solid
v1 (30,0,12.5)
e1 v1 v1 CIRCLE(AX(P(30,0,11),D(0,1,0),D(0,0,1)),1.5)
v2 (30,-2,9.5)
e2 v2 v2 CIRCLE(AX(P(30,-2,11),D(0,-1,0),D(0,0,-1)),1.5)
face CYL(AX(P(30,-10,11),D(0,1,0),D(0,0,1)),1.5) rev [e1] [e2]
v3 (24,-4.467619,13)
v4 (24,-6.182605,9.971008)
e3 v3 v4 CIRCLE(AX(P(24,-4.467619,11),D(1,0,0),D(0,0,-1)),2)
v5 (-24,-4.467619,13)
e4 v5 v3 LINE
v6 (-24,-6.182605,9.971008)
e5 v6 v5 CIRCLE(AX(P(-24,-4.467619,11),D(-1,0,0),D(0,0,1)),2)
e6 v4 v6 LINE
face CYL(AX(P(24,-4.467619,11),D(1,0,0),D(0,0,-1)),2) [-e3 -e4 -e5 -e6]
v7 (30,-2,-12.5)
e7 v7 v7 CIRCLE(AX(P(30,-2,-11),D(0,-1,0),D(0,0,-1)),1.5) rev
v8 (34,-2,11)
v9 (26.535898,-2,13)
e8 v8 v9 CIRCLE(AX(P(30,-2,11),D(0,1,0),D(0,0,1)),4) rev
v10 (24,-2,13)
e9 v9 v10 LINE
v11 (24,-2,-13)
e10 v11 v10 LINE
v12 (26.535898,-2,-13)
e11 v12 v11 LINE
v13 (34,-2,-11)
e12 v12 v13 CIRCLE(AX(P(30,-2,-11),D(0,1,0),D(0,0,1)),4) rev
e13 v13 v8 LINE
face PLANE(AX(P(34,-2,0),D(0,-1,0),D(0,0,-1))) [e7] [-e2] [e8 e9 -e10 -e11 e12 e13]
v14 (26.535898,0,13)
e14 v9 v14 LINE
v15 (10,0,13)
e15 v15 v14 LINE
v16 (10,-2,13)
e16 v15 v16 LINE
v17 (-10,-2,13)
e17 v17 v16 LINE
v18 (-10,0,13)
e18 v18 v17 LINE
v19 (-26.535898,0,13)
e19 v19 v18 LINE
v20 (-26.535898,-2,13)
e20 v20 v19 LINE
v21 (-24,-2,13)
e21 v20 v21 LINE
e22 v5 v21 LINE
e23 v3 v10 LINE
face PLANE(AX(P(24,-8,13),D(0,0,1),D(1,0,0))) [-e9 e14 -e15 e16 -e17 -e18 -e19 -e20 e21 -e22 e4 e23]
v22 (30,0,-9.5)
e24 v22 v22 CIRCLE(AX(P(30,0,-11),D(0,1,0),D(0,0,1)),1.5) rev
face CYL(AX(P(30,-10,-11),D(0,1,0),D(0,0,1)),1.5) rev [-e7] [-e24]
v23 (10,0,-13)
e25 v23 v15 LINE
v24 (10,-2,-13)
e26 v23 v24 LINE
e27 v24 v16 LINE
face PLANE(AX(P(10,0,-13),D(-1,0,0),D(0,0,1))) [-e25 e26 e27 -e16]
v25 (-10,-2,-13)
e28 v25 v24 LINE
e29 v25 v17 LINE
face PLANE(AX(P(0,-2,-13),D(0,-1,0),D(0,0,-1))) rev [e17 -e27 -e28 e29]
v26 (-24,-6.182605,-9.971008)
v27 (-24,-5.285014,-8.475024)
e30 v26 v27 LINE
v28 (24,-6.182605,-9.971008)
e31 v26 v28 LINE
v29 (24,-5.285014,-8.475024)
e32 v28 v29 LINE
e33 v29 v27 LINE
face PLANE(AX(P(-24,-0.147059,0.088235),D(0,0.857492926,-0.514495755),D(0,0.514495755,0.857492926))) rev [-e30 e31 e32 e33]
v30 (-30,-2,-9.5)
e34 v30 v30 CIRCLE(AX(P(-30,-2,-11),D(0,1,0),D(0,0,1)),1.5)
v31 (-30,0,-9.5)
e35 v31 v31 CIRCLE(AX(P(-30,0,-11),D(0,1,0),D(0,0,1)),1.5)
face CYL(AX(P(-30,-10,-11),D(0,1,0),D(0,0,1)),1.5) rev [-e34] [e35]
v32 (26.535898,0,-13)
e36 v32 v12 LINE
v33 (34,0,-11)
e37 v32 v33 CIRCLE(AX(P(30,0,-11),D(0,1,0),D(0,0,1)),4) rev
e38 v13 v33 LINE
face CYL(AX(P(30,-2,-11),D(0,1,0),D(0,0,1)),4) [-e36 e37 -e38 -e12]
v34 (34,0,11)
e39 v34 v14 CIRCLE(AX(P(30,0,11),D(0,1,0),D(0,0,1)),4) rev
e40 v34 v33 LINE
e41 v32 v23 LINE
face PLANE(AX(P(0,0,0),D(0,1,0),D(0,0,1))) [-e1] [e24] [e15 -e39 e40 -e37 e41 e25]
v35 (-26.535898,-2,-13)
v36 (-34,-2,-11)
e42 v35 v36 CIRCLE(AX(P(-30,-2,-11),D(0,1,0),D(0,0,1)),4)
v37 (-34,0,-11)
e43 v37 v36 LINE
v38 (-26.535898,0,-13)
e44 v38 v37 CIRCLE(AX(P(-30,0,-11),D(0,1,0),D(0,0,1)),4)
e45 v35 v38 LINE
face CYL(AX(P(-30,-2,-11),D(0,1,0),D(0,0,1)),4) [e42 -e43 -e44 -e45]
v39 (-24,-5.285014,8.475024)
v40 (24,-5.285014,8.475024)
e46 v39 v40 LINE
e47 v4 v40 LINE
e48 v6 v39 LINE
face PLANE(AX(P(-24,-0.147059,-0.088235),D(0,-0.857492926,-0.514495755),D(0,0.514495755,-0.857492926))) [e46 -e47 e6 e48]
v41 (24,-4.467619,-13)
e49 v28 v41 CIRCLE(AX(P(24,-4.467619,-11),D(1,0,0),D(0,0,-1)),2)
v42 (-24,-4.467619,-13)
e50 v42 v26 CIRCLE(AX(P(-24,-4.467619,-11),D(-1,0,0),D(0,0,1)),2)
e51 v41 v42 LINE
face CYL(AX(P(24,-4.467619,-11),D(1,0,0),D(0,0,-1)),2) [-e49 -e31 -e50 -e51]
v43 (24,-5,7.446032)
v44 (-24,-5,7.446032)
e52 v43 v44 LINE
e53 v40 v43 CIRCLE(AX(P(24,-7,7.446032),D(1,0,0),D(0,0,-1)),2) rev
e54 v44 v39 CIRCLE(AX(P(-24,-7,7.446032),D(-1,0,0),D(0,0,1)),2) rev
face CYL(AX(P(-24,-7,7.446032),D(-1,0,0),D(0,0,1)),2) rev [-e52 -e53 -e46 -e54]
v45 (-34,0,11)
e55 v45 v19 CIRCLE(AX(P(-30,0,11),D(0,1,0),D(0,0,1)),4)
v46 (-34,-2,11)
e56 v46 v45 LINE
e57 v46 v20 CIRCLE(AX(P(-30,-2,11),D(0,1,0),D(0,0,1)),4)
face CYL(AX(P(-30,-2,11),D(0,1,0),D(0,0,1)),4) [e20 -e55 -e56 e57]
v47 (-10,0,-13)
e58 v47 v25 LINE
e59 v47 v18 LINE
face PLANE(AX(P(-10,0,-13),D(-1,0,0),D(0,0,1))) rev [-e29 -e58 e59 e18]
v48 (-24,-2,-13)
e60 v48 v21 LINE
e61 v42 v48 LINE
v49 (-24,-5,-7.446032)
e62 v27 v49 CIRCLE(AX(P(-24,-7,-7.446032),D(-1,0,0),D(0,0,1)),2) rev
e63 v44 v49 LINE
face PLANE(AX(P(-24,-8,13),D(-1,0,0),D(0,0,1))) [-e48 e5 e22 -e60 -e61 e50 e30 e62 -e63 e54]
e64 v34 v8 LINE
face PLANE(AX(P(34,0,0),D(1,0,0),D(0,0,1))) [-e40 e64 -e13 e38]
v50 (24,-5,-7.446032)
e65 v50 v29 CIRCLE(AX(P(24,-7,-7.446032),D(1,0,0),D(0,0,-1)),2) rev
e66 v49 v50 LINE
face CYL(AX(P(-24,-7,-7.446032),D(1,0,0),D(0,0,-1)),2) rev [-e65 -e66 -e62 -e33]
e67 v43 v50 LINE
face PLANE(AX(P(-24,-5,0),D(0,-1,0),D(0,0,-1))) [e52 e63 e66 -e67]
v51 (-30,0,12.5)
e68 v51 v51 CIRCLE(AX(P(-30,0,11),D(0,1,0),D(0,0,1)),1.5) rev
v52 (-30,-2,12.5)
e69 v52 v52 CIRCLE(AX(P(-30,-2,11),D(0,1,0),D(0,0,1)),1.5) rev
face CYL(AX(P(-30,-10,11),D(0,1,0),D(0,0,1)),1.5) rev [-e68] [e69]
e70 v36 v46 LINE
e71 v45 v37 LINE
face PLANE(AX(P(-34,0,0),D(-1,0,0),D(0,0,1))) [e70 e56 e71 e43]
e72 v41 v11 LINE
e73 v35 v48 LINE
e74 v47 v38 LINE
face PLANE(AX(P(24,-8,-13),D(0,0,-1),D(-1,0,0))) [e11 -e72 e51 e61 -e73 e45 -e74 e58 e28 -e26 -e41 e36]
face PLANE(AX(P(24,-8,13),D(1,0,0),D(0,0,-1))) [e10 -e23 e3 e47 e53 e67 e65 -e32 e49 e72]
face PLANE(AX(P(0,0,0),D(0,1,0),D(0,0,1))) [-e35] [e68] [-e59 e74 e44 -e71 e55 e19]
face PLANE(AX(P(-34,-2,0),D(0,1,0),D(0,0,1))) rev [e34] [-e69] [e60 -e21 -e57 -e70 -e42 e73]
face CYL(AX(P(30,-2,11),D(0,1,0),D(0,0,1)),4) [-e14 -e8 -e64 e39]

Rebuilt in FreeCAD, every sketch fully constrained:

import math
import FreeCAD as App
import Part
import Sketcher


def edges_at(feature, points):
    """Names of the edges that pass closest to the given points."""
    edges = feature.Shape.Edges
    near = lambda p: min(range(len(edges)), key=lambda i: edges[i].distToShape(Part.Vertex(*p))[0])
    return sorted({f"Edge{near(p) + 1}" for p in points})

doc = App.newDocument("Part")
body = doc.addObject("PartDesign::Body", "Body")

# Sketch on XZ plane
sketch1 = body.newObject("Sketcher::SketchObject", "Sketch")
sketch1.AttachmentSupport = (doc.getObject("XZ_Plane"), [""])
sketch1.MapMode = "FlatFace"
sketch1.addGeometry([
    Part.LineSegment(App.Vector(-24, -13, 0), App.Vector(-24, 13, 0)),
    Part.LineSegment(App.Vector(-24, 13, 0), App.Vector(24, 13, 0)),
    Part.LineSegment(App.Vector(24, 13, 0), App.Vector(24, -13, 0)),
    Part.LineSegment(App.Vector(24, -13, 0), App.Vector(-24, -13, 0)),
], False)
sketch1.addConstraint([
    Sketcher.Constraint("Coincident", 0, 2, 1, 1),
    Sketcher.Constraint("Coincident", 1, 2, 2, 1),
    Sketcher.Constraint("Coincident", 2, 2, 3, 1),
    Sketcher.Constraint("Coincident", 3, 2, 0, 1),
    Sketcher.Constraint("Vertical", 0),
    Sketcher.Constraint("Horizontal", 1),
    Sketcher.Constraint("Vertical", 2),
    Sketcher.Constraint("Horizontal", 3),
    Sketcher.Constraint("Symmetric", 0, 2, 2, 2, -1, 1),
    Sketcher.Constraint("DistanceX", 1, 1, 1, 2, 48.0),
    Sketcher.Constraint("DistanceY", 0, 1, 0, 2, 26.0),
])
pad1 = body.newObject("PartDesign::Pad", "Pad")
pad1.Profile = sketch1
pad1.Length = 8

# Sketch on YZ plane
sketch2 = body.newObject("Sketcher::SketchObject", "Sketch001")
sketch2.AttachmentSupport = (doc.getObject("YZ_Plane"), [""])
sketch2.MapMode = "FlatFace"
sketch2.AttachmentOffset = App.Placement(App.Vector(0, 0, 24), App.Rotation())
sketch2.addGeometry([
    Part.LineSegment(App.Vector(-5, 8, 0), App.Vector(-8, 13, 0)),
    Part.LineSegment(App.Vector(-8, 13, 0), App.Vector(-8, -13, 0)),
    Part.LineSegment(App.Vector(-8, -13, 0), App.Vector(-5, -8, 0)),
    Part.LineSegment(App.Vector(-5, -8, 0), App.Vector(-5, 8, 0)),
], False)
sketch2.addConstraint([
    Sketcher.Constraint("Coincident", 0, 2, 1, 1),
    Sketcher.Constraint("Coincident", 1, 2, 2, 1),
    Sketcher.Constraint("Coincident", 2, 2, 3, 1),
    Sketcher.Constraint("Coincident", 3, 2, 0, 1),
    Sketcher.Constraint("Vertical", 1),
    Sketcher.Constraint("Vertical", 3),
    Sketcher.Constraint("Equal", 0, 2),
    Sketcher.Constraint("DistanceY", 1, 2, 1, 1, 26.0),
    Sketcher.Constraint("DistanceY", 3, 1, 3, 2, 16.0),
    Sketcher.Constraint("DistanceX", 0, 2, -1, 1, 8.0),
    Sketcher.Constraint("DistanceY", -1, 1, 0, 2, 13.0),
    Sketcher.Constraint("DistanceX", 2, 2, -1, 1, 5.0),
])
pocket1 = body.newObject("PartDesign::Pocket", "Pocket")
pocket1.Profile = sketch2
pocket1.Type = "ThroughAll"
pocket1.Midplane = True
doc.recompute()

fillet = body.newObject("PartDesign::Fillet", "Fillet")
fillet.Base = (pocket1, edges_at(pocket1, [
    (0, -8, -13),
    (0, -5, 8),
    (0, -5, -8),
    (0, -8, 13),
]))
fillet.Radius = 2

# Sketch on YZ plane
sketch3 = body.newObject("Sketcher::SketchObject", "Sketch002")
sketch3.AttachmentSupport = (doc.getObject("YZ_Plane"), [""])
sketch3.MapMode = "FlatFace"
sketch3.AttachmentOffset = App.Placement(App.Vector(0, 0, -24), App.Rotation())
sketch3.addGeometry([
    Part.LineSegment(App.Vector(0, -13, 0), App.Vector(-2, -13, 0)),
    Part.LineSegment(App.Vector(-2, -13, 0), App.Vector(-2, 13, 0)),
    Part.LineSegment(App.Vector(-2, 13, 0), App.Vector(0, 13, 0)),
    Part.LineSegment(App.Vector(0, 13, 0), App.Vector(0, -13, 0)),
], False)
sketch3.addConstraint([
    Sketcher.Constraint("Coincident", 0, 2, 1, 1),
    Sketcher.Constraint("Coincident", 1, 2, 2, 1),
    Sketcher.Constraint("Coincident", 2, 2, 3, 1),
    Sketcher.Constraint("Coincident", 3, 2, 0, 1),
    Sketcher.Constraint("Horizontal", 0),
    Sketcher.Constraint("Vertical", 1),
    Sketcher.Constraint("Horizontal", 2),
    Sketcher.Constraint("Vertical", 3),
    Sketcher.Constraint("Symmetric", 2, 2, 3, 2, -1, 1),
    Sketcher.Constraint("DistanceX", 0, 2, 0, 1, 2.0),
    Sketcher.Constraint("DistanceY", 1, 1, 1, 2, 26.0),
])
pad2 = body.newObject("PartDesign::Pad", "Pad001")
pad2.Profile = sketch3
pad2.Length = 10
pad2.Reversed = True
doc.recompute()

mirrored = body.newObject("PartDesign::Mirrored", "Mirrored")
mirrored.Originals = [pad2]
mirrored.MirrorPlane = (doc.getObject("YZ_Plane"), [""])
body.Tip = mirrored

# Sketch on XZ plane
sketch4 = body.newObject("Sketcher::SketchObject", "Sketch003")
sketch4.AttachmentSupport = (doc.getObject("XZ_Plane"), [""])
sketch4.MapMode = "FlatFace"
sketch4.addGeometry([
    Part.Circle(App.Vector(-30, -11, 0), App.Vector(0, 0, 1), 1.5),
    Part.Circle(App.Vector(-30, 11, 0), App.Vector(0, 0, 1), 1.5),
    Part.Circle(App.Vector(30, 11, 0), App.Vector(0, 0, 1), 1.5),
    Part.Circle(App.Vector(30, -11, 0), App.Vector(0, 0, 1), 1.5),
], False)
sketch4.addConstraint([
    Sketcher.Constraint("Equal", 0, 1),
    Sketcher.Constraint("Equal", 1, 2),
    Sketcher.Constraint("Equal", 2, 3),
    Sketcher.Constraint("Symmetric", 0, 3, 2, 3, -1, 1),
    Sketcher.Constraint("Symmetric", 1, 3, 3, 3, -1, 1),
    Sketcher.Constraint("Symmetric", 1, 3, 2, 3, -2),
    Sketcher.Constraint("Diameter", 0, 3.0),
    Sketcher.Constraint("DistanceX", 0, 3, -1, 1, 30.0),
    Sketcher.Constraint("DistanceY", 0, 3, -1, 1, 11.0),
])
pocket2 = body.newObject("PartDesign::Pocket", "Pocket001")
pocket2.Profile = sketch4
pocket2.Length = 10
pocket2.Reversed = True

# Sketch on XY plane
sketch5 = body.newObject("Sketcher::SketchObject", "Sketch004")
sketch5.AttachmentSupport = (doc.getObject("XY_Plane"), [""])
sketch5.MapMode = "FlatFace"
sketch5.AttachmentOffset = App.Placement(App.Vector(0, 0, 13), App.Rotation())
sketch5.addGeometry([
    Part.LineSegment(App.Vector(10, -2, 0), App.Vector(10, 0, 0)),
    Part.LineSegment(App.Vector(10, 0, 0), App.Vector(-10, 0, 0)),
    Part.LineSegment(App.Vector(-10, 0, 0), App.Vector(-10, -2, 0)),
    Part.LineSegment(App.Vector(-10, -2, 0), App.Vector(10, -2, 0)),
], False)
sketch5.addConstraint([
    Sketcher.Constraint("Coincident", 0, 2, 1, 1),
    Sketcher.Constraint("Coincident", 1, 2, 2, 1),
    Sketcher.Constraint("Coincident", 2, 2, 3, 1),
    Sketcher.Constraint("Coincident", 3, 2, 0, 1),
    Sketcher.Constraint("Vertical", 0),
    Sketcher.Constraint("Horizontal", 1),
    Sketcher.Constraint("Vertical", 2),
    Sketcher.Constraint("Horizontal", 3),
    Sketcher.Constraint("Symmetric", 0, 2, 1, 2, -1, 1),
    Sketcher.Constraint("DistanceX", 1, 2, 1, 1, 20.0),
    Sketcher.Constraint("DistanceY", 0, 1, 0, 2, 2.0),
])
pocket3 = body.newObject("PartDesign::Pocket", "Pocket002")
pocket3.Profile = sketch5
pocket3.Type = "ThroughAll"
doc.recompute()

fillet2 = body.newObject("PartDesign::Fillet", "Fillet001")
fillet2.Base = (pocket3, edges_at(pocket3, [
    (-34, -1, -13),
    (-34, -1, 13),
    (34, -1, -13),
    (34, -1, 13),
]))
fillet2.Radius = 2

# Sketch on XZ plane
sketch6 = body.newObject("Sketcher::SketchObject", "Sketch005")
sketch6.AttachmentSupport = (doc.getObject("XZ_Plane"), [""])
sketch6.MapMode = "FlatFace"
sketch6.addGeometry([
    Part.LineSegment(App.Vector(-32, -13, 0), App.Vector(-26.5, -13, 0)),  # 0
    Part.ArcOfCircle(Part.Circle(App.Vector(-30, -11, 0), App.Vector(0, 0, 1), 4), math.radians(180), math.radians(330)),  # 1
    Part.ArcOfCircle(Part.Circle(App.Vector(-32, -11, 0), App.Vector(0, 0, 1), 2), math.radians(-180), math.radians(-90)),  # 2
    Part.ArcOfCircle(Part.Circle(App.Vector(-30, 11, 0), App.Vector(0, 0, 1), 4), math.radians(30), math.radians(180)),  # 3
    Part.LineSegment(App.Vector(-26.5, 13, 0), App.Vector(-32, 13, 0)),  # 4
    Part.ArcOfCircle(Part.Circle(App.Vector(-32, 11, 0), App.Vector(0, 0, 1), 2), math.radians(90), math.radians(180)),  # 5
    Part.Circle(App.Vector(30, -11, 0), App.Vector(0, 0, 1), 4),  # 6
    Part.Circle(App.Vector(30, -11, 0), App.Vector(0, 0, 1), 1.5),  # 7
    Part.Circle(App.Vector(30, 11, 0), App.Vector(0, 0, 1), 4),  # 8
    Part.Circle(App.Vector(30, 11, 0), App.Vector(0, 0, 1), 1.5),  # 9
], False)
sketch6.addConstraint([
    Sketcher.Constraint("Coincident", 0, 2, 1, 2),
    Sketcher.Constraint("Tangent", 1, 1, 2, 1),
    Sketcher.Constraint("Tangent", 2, 2, 0, 1),
    Sketcher.Constraint("Coincident", 3, 1, 4, 1),
    Sketcher.Constraint("Tangent", 4, 2, 5, 1),
    Sketcher.Constraint("Tangent", 5, 2, 3, 2),
    Sketcher.Constraint("Horizontal", 0),
    Sketcher.Constraint("Horizontal", 4),
    Sketcher.Constraint("Coincident", 7, 3, 6, 3),
    Sketcher.Constraint("Coincident", 9, 3, 8, 3),
    Sketcher.Constraint("Equal", 1, 3),
    Sketcher.Constraint("Equal", 2, 5),
    Sketcher.Constraint("Equal", 3, 6),
    Sketcher.Constraint("Equal", 6, 8),
    Sketcher.Constraint("Equal", 7, 9),
    Sketcher.Constraint("Symmetric", 3, 3, 6, 3, -1, 1),
    Sketcher.Constraint("Symmetric", 1, 3, 8, 3, -1, 1),
    Sketcher.Constraint("Symmetric", 1, 3, 6, 3, -2),
    Sketcher.Constraint("Horizontal", 1, 3, 2, 3),
    Sketcher.Constraint("Horizontal", 3, 3, 5, 3),
    Sketcher.Constraint("Diameter", 6, 8.0),
    Sketcher.Constraint("Diameter", 7, 3.0),
    Sketcher.Constraint("Radius", 2, 2.0),
    Sketcher.Constraint("DistanceX", 1, 3, -1, 1, 30.0),
    Sketcher.Constraint("DistanceY", 1, 3, -1, 1, 11.0),
])
pad3 = body.newObject("PartDesign::Pad", "Pad002")
pad3.Profile = sketch6
pad3.Length = 2

doc.recompute()
